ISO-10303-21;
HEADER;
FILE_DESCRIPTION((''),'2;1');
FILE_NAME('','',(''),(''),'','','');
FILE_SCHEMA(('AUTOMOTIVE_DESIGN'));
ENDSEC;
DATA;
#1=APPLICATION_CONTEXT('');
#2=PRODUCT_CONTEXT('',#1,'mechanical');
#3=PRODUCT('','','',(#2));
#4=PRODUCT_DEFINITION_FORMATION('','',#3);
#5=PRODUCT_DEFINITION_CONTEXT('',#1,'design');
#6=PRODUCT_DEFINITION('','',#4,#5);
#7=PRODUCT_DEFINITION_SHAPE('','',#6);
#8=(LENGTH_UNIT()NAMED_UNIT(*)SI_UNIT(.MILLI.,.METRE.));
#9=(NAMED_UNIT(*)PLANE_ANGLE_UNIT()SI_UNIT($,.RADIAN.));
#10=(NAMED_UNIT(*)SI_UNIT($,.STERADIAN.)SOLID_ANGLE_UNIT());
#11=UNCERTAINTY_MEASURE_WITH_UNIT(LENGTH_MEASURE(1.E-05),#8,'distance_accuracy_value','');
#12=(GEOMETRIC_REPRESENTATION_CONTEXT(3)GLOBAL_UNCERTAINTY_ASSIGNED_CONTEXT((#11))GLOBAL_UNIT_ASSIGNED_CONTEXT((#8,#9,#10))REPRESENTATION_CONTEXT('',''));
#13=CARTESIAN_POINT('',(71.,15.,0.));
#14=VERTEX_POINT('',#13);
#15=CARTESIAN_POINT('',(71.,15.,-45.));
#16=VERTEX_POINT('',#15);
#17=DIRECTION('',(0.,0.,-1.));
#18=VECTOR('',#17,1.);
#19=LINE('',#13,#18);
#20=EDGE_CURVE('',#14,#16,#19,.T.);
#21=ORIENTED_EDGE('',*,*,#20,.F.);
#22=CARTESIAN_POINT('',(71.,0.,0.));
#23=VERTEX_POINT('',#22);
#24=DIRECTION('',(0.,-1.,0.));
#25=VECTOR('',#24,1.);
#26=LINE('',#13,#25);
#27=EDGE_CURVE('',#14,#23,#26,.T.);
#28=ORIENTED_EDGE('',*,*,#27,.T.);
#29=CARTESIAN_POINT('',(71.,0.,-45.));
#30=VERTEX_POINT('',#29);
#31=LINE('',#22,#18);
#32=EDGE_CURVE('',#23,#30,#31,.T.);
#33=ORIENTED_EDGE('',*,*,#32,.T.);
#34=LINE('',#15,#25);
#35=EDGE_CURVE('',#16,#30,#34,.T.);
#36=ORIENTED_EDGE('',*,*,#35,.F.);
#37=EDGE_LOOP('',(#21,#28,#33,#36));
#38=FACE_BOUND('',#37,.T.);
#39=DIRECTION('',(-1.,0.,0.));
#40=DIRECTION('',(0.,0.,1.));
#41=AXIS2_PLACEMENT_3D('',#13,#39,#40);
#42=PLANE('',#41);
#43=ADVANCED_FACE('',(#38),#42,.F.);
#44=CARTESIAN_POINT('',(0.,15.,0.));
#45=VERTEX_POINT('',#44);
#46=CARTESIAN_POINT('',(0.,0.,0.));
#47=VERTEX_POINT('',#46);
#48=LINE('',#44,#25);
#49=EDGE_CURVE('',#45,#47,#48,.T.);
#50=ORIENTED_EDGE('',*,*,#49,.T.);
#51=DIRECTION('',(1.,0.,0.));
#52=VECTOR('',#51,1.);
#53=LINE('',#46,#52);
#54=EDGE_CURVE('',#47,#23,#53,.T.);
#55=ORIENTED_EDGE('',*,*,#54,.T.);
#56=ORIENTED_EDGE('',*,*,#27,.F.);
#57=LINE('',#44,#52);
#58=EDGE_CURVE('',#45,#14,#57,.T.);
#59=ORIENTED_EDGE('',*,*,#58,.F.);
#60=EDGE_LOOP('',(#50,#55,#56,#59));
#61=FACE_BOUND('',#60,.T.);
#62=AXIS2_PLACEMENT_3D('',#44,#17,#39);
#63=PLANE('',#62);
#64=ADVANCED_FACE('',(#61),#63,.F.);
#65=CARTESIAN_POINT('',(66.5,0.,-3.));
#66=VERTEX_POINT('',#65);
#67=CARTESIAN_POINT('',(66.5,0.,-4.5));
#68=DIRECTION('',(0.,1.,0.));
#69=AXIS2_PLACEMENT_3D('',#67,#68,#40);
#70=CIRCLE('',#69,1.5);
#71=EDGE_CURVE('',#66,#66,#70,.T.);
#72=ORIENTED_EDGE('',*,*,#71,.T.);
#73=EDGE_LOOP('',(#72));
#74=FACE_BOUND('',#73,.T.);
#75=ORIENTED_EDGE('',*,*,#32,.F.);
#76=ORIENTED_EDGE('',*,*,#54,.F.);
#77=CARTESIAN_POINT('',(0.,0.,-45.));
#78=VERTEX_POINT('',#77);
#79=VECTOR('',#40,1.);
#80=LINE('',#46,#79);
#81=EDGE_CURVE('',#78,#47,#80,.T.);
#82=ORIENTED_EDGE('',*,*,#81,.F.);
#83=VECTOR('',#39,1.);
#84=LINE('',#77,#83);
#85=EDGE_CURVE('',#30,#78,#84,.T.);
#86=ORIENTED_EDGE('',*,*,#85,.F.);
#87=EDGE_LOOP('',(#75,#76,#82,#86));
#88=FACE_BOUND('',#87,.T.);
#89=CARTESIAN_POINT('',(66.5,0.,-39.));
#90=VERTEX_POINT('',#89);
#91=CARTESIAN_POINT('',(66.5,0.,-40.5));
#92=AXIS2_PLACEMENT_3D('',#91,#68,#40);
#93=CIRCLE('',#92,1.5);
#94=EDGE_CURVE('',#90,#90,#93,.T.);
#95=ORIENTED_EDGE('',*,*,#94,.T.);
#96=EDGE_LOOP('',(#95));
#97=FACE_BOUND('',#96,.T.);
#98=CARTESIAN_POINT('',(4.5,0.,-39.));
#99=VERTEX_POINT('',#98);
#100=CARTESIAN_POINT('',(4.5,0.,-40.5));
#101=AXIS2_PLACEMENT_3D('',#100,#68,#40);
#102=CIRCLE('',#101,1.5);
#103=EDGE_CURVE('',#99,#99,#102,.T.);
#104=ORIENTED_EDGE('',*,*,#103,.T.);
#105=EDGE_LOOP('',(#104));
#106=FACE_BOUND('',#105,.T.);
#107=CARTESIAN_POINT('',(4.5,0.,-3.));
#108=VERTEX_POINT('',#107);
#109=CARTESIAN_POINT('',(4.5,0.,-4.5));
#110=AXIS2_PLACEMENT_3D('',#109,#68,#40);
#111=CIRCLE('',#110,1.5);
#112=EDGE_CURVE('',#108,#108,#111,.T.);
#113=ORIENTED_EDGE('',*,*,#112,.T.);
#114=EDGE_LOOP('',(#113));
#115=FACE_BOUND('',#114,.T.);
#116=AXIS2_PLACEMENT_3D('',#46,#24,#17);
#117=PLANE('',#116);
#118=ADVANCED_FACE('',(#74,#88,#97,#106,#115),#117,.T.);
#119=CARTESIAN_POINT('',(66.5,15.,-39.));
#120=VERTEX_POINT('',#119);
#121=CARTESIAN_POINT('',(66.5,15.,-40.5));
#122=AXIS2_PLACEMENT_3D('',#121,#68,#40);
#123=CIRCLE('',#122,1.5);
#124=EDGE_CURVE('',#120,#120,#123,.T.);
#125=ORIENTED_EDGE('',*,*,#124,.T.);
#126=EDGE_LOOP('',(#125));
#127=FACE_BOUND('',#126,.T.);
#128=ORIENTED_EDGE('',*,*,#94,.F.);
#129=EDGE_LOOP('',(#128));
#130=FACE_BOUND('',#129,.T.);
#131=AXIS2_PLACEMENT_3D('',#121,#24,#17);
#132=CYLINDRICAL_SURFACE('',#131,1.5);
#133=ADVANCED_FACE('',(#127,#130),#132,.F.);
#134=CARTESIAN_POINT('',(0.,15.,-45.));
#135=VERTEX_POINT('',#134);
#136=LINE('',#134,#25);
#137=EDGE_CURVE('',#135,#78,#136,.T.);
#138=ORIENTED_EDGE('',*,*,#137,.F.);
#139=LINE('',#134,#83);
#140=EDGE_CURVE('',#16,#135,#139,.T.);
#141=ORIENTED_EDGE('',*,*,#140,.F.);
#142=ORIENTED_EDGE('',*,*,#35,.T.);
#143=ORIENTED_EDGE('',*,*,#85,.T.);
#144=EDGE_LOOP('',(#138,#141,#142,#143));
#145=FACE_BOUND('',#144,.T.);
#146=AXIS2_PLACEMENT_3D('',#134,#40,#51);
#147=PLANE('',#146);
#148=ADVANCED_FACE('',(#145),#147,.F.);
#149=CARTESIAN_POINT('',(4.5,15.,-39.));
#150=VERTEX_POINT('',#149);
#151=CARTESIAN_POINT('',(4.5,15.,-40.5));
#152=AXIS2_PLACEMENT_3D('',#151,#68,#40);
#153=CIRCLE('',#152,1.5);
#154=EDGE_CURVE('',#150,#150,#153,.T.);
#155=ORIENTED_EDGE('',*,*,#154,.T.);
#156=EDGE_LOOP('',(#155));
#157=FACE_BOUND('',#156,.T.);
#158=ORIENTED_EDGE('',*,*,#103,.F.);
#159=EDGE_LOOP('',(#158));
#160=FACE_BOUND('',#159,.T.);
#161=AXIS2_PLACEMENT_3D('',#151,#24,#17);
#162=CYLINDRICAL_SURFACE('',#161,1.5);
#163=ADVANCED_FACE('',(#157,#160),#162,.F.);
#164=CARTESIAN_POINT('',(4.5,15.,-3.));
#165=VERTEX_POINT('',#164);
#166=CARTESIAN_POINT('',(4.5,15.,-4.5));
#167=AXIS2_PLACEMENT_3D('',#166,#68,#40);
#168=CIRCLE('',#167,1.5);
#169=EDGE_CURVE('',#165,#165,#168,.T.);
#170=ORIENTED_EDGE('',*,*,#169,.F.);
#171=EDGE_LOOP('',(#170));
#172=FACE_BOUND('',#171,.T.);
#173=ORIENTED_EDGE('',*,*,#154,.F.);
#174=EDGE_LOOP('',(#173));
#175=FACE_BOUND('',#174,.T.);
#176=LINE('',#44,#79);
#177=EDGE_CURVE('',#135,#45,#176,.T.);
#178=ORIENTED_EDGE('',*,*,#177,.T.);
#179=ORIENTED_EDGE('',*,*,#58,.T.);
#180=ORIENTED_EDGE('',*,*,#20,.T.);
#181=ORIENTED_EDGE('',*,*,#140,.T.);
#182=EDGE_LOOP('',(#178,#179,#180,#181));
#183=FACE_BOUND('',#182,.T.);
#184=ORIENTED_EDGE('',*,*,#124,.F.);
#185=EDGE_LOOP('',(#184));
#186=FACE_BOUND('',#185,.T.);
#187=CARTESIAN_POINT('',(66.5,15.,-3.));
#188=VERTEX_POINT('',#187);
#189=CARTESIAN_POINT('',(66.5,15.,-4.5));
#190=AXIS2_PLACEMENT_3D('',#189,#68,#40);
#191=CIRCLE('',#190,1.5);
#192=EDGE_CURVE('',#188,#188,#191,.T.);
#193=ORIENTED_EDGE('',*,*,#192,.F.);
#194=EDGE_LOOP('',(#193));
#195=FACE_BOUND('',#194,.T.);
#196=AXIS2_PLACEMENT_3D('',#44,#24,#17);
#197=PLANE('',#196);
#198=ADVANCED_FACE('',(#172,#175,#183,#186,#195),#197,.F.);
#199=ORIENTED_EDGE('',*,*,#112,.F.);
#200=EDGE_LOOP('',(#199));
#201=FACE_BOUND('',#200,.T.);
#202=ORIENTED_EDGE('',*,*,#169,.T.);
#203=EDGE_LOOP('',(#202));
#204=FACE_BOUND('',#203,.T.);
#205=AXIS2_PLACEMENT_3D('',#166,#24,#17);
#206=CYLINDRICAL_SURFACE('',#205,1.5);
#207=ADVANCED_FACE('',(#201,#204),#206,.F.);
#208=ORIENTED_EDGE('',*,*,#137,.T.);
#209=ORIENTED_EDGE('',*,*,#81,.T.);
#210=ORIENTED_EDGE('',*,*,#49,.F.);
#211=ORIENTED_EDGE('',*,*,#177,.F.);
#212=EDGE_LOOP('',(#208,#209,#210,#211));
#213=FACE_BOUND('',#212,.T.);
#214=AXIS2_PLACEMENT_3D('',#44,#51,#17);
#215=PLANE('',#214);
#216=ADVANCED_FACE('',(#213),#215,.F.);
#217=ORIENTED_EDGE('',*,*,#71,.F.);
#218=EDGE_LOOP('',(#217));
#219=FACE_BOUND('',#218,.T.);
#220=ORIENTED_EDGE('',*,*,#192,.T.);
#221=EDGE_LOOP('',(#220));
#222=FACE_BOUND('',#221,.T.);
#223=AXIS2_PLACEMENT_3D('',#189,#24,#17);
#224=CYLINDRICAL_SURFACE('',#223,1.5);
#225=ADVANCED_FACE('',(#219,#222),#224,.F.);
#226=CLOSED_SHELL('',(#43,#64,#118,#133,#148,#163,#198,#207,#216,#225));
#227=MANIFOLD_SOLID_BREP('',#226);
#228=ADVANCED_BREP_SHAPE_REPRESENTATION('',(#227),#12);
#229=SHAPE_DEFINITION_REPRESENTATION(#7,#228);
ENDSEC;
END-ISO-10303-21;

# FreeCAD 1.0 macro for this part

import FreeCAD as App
import Part
import Sketcher

V = App.Vector
Q = App.Units.Quantity

doc = App.newDocument("Part")
body = doc.addObject("PartDesign::Body", "Body")

sketch1 = body.newObject("Sketcher::SketchObject", "Sketch")
sketch1.AttachmentSupport = (doc.getObject("XZ_Plane"), [""])
sketch1.MapMode = "FlatFace"
sketch1.addGeometry([
    Part.LineSegment(V(0, -45, 0), V(0, 0, 0)),
    Part.LineSegment(V(0, 0, 0), V(71, 0, 0)),
    Part.LineSegment(V(71, 0, 0), V(71, -45, 0)),
    Part.LineSegment(V(71, -45, 0), V(0, -45, 0)),
    Part.Circle(V(4.5, -4.5, 0), V(0, 0, 1), 1.5),
    Part.Circle(V(66.5, -4.5, 0), V(0, 0, 1), 1.5),
    Part.Circle(V(4.5, -40.5, 0), V(0, 0, 1), 1.5),
    Part.Circle(V(66.5, -40.5, 0), V(0, 0, 1), 1.5),
], False)
sketch1.addConstraint([
    Sketcher.Constraint("Coincident", 0, 2, 1, 1),
    Sketcher.Constraint("Coincident", 1, 2, 2, 1),
    Sketcher.Constraint("Coincident", 2, 2, 3, 1),
    Sketcher.Constraint("Coincident", 3, 2, 0, 1),
    Sketcher.Constraint("Vertical", 0),
    Sketcher.Constraint("Horizontal", 1),
    Sketcher.Constraint("Vertical", 2),
    Sketcher.Constraint("Horizontal", 3),
    Sketcher.Constraint("Coincident", 0, 2, -1, 1),
    Sketcher.Constraint("Equal", 4, 5),
    Sketcher.Constraint("Equal", 5, 6),
    Sketcher.Constraint("Equal", 6, 7),
    Sketcher.Constraint("Horizontal", 4, 3, 5, 3),
    Sketcher.Constraint("Horizontal", 6, 3, 7, 3),
    Sketcher.Constraint("Vertical", 4, 3, 6, 3),
    Sketcher.Constraint("Vertical", 5, 3, 7, 3),
    Sketcher.Constraint("Diameter", 4, Q("3 mm")),
    Sketcher.Constraint("DistanceX", 1, 1, 1, 2, Q("71 mm")),
    Sketcher.Constraint("DistanceY", 0, 1, 0, 2, Q("45 mm")),
    Sketcher.Constraint("DistanceX", 4, 3, 5, 3, Q("62 mm")),
    Sketcher.Constraint("DistanceY", 6, 3, 4, 3, Q("36 mm")),
    Sketcher.Constraint("DistanceX", -1, 1, 4, 3, Q("4.5 mm")),
    Sketcher.Constraint("DistanceY", 4, 3, -1, 1, Q("4.5 mm")),
])
pad1 = body.newObject("PartDesign::Pad", "Pad")
pad1.Profile = sketch1
pad1.Length = 15
pad1.Reversed = True

doc.recompute()
